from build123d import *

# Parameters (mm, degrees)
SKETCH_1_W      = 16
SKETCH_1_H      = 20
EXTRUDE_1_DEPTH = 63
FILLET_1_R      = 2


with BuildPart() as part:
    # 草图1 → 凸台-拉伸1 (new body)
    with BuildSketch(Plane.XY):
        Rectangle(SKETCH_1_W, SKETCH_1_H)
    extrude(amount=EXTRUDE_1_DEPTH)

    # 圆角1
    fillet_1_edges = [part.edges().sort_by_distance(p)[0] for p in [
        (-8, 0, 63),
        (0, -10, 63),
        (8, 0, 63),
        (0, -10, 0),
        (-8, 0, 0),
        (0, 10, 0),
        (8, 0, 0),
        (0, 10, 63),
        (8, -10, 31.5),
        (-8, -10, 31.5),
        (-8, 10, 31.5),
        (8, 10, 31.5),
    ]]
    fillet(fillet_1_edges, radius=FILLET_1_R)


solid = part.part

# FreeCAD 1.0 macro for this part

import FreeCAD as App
import Part
import Sketcher

V = App.Vector
Q = App.Units.Quantity


def add_polygon(sketch, points):
    """Adds a closed chain of lines whose ends are joined by coincident constraints."""
    first, n = sketch.GeometryCount, len(points)
    for a, b in zip(points, points[1:] + points[:1]):
        sketch.addGeometry(Part.LineSegment(App.Vector(*a, 0), App.Vector(*b, 0)), False)
    for i in range(n):
        sketch.addConstraint(Sketcher.Constraint("Coincident", first + i, 2, first + (i + 1) % n, 1))

doc = App.newDocument("Part")
params = doc.addObject("Spreadsheet::Sheet", "Params")
for row, (alias, value) in enumerate([
    ("sketch1_width", "16 mm"),
    ("sketch1_height", "20 mm"),
    ("pad1_length", "63 mm"),
    ("fillet_radius", "2 mm"),
], start=1):
    params.set(f"A{row}", alias)
    params.set(f"B{row}", "=" + value)
    params.setAlias(f"B{row}", alias)

body = doc.addObject("PartDesign::Body", "Body")

# Sketch on XY plane
sketch1 = body.newObject("Sketcher::SketchObject", "Sketch")
sketch1.AttachmentSupport = (doc.getObject("XY_Plane"), [""])
sketch1.MapMode = "FlatFace"
add_polygon(sketch1, [(-8, 10), (-8, -10), (8, -10), (8, 10)])  # lines 0-3
sketch1.addConstraint(Sketcher.Constraint("Vertical", 0))
sketch1.addConstraint(Sketcher.Constraint("Horizontal", 1))
sketch1.addConstraint(Sketcher.Constraint("Vertical", 2))
sketch1.addConstraint(Sketcher.Constraint("Horizontal", 3))
sketch1.addConstraint(Sketcher.Constraint("Symmetric", 0, 2, 2, 2, -1, 1))
sketch1.addConstraint(Sketcher.Constraint("DistanceX", 1, 1, 1, 2, Q("16 mm")))
sketch1.addConstraint(Sketcher.Constraint("DistanceY", 0, 2, 0, 1, Q("20 mm")))
sketch1.setExpression("Constraints[9]", "Params.sketch1_width")
sketch1.setExpression("Constraints[10]", "Params.sketch1_height")
pad1 = body.newObject("PartDesign::Pad", "Pad")
pad1.Profile = sketch1
pad1.setExpression("Length", "Params.pad1_length")
doc.recompute()

fillet = body.newObject("PartDesign::Fillet", "Fillet")
fillet.Base = (pad1, ["Edge1"])
fillet.UseAllEdges = True
fillet.setExpression("Radius", "Params.fillet_radius")

doc.recompute()
